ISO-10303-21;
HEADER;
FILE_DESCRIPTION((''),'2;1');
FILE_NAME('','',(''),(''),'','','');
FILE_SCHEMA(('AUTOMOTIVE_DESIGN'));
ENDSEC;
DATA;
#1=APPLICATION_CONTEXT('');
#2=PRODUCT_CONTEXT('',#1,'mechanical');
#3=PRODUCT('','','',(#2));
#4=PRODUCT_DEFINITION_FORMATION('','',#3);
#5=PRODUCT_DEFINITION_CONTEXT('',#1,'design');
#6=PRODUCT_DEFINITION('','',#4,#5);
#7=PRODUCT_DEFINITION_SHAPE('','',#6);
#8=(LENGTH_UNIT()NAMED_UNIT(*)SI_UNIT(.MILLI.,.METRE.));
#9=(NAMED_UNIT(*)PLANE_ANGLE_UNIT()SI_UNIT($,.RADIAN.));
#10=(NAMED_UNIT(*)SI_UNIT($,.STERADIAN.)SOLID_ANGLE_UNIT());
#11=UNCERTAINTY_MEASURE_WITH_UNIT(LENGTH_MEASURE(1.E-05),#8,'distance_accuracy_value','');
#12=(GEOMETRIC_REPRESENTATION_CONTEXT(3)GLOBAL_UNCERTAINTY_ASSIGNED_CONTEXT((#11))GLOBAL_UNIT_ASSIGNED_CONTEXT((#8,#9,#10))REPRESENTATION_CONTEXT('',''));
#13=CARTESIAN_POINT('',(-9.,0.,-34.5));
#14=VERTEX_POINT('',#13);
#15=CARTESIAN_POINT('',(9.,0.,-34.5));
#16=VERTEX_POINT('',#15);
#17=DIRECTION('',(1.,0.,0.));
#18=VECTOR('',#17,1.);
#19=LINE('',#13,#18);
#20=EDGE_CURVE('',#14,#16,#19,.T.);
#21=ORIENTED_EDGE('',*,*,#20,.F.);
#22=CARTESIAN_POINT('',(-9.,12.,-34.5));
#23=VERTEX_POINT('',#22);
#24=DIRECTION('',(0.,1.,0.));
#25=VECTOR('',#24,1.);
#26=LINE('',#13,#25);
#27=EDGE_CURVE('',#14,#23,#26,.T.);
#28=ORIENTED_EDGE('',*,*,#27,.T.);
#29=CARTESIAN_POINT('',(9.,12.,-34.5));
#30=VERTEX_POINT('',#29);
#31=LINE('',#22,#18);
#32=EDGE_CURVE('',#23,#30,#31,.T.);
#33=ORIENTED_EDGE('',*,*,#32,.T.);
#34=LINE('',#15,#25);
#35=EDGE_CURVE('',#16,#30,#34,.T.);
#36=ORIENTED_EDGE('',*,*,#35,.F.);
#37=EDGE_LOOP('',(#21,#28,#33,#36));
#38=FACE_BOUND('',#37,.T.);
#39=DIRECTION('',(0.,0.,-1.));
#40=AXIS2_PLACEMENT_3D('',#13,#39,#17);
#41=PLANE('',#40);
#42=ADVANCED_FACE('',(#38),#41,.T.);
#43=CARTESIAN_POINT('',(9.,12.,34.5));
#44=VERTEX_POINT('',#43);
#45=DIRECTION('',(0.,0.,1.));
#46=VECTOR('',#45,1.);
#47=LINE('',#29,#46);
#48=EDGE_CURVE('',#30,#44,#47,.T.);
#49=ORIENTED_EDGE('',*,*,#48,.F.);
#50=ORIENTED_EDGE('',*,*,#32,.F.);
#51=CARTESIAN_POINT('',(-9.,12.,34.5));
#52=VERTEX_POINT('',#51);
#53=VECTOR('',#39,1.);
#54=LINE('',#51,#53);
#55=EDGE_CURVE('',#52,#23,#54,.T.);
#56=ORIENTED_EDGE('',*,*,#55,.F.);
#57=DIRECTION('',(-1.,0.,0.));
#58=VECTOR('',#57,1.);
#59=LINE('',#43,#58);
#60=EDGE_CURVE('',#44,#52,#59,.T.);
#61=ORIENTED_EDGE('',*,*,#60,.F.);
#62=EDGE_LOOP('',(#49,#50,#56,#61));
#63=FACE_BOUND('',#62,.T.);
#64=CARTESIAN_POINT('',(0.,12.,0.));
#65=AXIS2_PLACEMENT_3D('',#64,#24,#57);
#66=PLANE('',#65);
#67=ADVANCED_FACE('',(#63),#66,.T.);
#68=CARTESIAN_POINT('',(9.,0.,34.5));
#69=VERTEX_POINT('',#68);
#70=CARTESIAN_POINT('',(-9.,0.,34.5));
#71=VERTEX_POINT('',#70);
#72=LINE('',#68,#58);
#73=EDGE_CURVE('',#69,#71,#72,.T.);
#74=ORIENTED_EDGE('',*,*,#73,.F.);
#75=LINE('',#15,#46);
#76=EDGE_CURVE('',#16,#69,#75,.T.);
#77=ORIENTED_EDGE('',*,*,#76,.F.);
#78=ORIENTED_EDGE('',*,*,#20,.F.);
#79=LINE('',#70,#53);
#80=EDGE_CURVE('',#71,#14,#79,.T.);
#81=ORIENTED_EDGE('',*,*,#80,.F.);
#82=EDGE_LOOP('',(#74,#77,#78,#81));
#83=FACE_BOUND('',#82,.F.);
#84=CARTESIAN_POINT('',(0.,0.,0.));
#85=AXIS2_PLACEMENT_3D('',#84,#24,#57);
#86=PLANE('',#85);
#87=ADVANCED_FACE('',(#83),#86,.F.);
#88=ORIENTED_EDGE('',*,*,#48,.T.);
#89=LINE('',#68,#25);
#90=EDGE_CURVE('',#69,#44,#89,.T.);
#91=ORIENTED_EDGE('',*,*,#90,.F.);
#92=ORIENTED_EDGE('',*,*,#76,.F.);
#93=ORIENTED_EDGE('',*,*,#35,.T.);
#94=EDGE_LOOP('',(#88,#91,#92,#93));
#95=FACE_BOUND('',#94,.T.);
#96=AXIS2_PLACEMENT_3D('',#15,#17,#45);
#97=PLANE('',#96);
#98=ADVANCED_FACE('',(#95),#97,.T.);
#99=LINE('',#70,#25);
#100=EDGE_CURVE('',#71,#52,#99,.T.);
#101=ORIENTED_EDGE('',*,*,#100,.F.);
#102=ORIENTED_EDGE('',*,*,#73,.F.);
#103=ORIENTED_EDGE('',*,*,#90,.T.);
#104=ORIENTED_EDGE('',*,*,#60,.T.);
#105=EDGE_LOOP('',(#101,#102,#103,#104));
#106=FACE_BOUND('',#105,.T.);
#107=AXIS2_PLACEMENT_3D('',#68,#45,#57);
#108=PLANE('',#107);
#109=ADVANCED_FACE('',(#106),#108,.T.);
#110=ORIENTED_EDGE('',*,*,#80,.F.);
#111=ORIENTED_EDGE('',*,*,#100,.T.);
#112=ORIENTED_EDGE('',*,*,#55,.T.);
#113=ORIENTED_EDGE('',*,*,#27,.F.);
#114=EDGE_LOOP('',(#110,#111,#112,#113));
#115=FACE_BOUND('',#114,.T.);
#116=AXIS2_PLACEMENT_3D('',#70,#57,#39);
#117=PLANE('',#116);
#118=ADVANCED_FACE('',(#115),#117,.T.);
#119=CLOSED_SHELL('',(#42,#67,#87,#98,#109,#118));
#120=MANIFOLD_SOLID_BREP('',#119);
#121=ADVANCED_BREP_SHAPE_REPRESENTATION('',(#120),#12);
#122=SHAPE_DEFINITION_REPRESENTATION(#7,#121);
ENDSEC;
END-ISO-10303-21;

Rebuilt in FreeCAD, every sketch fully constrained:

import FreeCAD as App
import Part
import Sketcher
from FreeCAD import Vector
Q = App.Units.Quantity

doc = App.newDocument("Part")
body = doc.addObject("PartDesign::Body", "Body")

# Sketch on XZ plane
sketch1 = doc.addObject("Sketcher::SketchObject", "Sketch")
body.addObject(sketch1)
sketch1.AttachmentSupport = (doc.XZ_Plane, [""])
sketch1.MapMode = "FlatFace"
sketch1.addGeometry(Part.LineSegment(Vector(-9, 34, 0), Vector(9, 34, 0)), False)
sketch1.addGeometry(Part.LineSegment(Vector(9, 34, 0), Vector(9, -34, 0)), False)
sketch1.addGeometry(Part.LineSegment(Vector(9, -34, 0), Vector(-9, -34, 0)), False)
sketch1.addGeometry(Part.LineSegment(Vector(-9, -34, 0), Vector(-9, 34, 0)), False)
sketch1.addConstraint(Sketcher.Constraint("Coincident", 0, 2, 1, 1))
sketch1.addConstraint(Sketcher.Constraint("Coincident", 1, 2, 2, 1))
sketch1.addConstraint(Sketcher.Constraint("Coincident", 2, 2, 3, 1))
sketch1.addConstraint(Sketcher.Constraint("Coincident", 3, 2, 0, 1))
sketch1.addConstraint(Sketcher.Constraint("Horizontal", 0))
sketch1.addConstraint(Sketcher.Constraint("Vertical", 1))
sketch1.addConstraint(Sketcher.Constraint("Horizontal", 2))
sketch1.addConstraint(Sketcher.Constraint("Vertical", 3))
sketch1.addConstraint(Sketcher.Constraint("Symmetric", 0, 2, 2, 2, -1, 1))
sketch1.addConstraint(Sketcher.Constraint("DistanceX", 0, 1, 0, 2, Q("18 mm")))
sketch1.addConstraint(Sketcher.Constraint("DistanceY", 1, 2, 1, 1, Q("69 mm")))
pad1 = doc.addObject("PartDesign::Pad", "Pad")
body.addObject(pad1)
pad1.Profile = sketch1
pad1.Length = 12
pad1.Reversed = True

doc.recompute()
